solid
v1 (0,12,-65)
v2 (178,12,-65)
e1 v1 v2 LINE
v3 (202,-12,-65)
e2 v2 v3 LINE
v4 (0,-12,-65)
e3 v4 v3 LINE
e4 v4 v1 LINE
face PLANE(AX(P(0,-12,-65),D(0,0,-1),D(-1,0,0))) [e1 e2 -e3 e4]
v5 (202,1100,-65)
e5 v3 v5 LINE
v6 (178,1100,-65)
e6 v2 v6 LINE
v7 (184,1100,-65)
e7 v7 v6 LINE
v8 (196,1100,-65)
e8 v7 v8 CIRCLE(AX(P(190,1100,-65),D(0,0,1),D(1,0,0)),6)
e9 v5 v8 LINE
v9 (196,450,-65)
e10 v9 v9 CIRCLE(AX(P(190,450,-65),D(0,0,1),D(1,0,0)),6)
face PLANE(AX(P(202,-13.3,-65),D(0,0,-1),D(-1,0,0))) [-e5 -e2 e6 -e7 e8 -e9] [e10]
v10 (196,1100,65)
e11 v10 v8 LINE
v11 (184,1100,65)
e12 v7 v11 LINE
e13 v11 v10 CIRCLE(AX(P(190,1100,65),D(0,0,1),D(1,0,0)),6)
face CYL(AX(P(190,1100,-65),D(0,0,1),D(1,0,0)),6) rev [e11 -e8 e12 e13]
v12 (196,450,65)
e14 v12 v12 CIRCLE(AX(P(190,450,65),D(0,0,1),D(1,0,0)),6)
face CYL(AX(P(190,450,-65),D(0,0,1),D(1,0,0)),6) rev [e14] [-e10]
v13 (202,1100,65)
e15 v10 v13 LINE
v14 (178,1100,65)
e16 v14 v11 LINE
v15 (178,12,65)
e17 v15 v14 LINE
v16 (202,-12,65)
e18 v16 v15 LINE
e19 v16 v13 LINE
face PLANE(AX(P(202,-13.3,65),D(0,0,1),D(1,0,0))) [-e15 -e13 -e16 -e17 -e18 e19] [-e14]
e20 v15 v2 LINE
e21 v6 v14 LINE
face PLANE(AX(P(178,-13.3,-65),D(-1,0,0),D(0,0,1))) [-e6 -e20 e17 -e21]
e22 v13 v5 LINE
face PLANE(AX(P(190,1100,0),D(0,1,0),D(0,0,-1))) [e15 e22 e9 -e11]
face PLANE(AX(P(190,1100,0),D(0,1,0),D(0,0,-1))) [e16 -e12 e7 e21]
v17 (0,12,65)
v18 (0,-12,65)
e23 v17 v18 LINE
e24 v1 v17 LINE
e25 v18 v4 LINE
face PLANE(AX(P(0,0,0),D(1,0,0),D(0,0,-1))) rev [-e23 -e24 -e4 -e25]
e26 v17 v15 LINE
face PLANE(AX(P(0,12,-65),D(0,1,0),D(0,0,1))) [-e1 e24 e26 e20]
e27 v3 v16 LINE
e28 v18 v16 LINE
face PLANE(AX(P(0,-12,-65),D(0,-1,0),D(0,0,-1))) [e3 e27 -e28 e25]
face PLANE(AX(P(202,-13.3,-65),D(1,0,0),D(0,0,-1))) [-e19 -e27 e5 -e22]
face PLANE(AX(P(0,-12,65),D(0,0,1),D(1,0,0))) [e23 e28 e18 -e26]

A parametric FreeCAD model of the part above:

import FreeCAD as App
import Part
import Sketcher

V = App.Vector
Q = App.Units.Quantity

doc = App.newDocument("Part")
params = doc.addObject("Spreadsheet::Sheet", "Params")
for row, (alias, value) in enumerate([
    ("sketch1_width", "24 mm"),
    ("sketch1_height", "130 mm"),
    ("sketch2_width", "190 mm"),
    ("sketch2_height", "1100 mm"),
    ("sketch3_diameter", "12 mm"),
], start=1):
    params.set(f"A{row}", alias)
    params.set(f"B{row}", "=" + value)
    params.setAlias(f"B{row}", alias)

body = doc.addObject("PartDesign::Body", "Body")

sketch1 = body.newObject("Sketcher::SketchObject", "Sketch")
sketch1.AttachmentSupport = (doc.getObject("YZ_Plane"), [""])
sketch1.MapMode = "FlatFace"
sketch1.addGeometry(Part.LineSegment(V(12, 65, 0), V(-12, 65, 0)), False)
sketch1.addGeometry(Part.LineSegment(V(-12, 65, 0), V(-12, -65, 0)), False)
sketch1.addGeometry(Part.LineSegment(V(-12, -65, 0), V(12, -65, 0)), False)
sketch1.addGeometry(Part.LineSegment(V(12, -65, 0), V(12, 65, 0)), False)
sketch1.addConstraint(Sketcher.Constraint("Coincident", 0, 2, 1, 1))
sketch1.addConstraint(Sketcher.Constraint("Coincident", 1, 2, 2, 1))
sketch1.addConstraint(Sketcher.Constraint("Coincident", 2, 2, 3, 1))
sketch1.addConstraint(Sketcher.Constraint("Coincident", 3, 2, 0, 1))
sketch1.addConstraint(Sketcher.Constraint("Horizontal", 0))
sketch1.addConstraint(Sketcher.Constraint("Vertical", 1))
sketch1.addConstraint(Sketcher.Constraint("Horizontal", 2))
sketch1.addConstraint(Sketcher.Constraint("Vertical", 3))
sketch1.addConstraint(Sketcher.Constraint("Symmetric", 0, 2, 2, 2, -1, 1))
sketch1.addConstraint(Sketcher.Constraint("DistanceX", 0, 2, 0, 1, Q("24 mm")))
sketch1.addConstraint(Sketcher.Constraint("DistanceY", 1, 2, 1, 1, Q("130 mm")))
sketch1.setExpression("Constraints[9]", "Params.sketch1_width")
sketch1.setExpression("Constraints[10]", "Params.sketch1_height")

sketch2 = body.newObject("Sketcher::SketchObject", "Sketch001")
sketch2.AttachmentSupport = (doc.getObject("XY_Plane"), [""])
sketch2.MapMode = "FlatFace"
sketch2.addGeometry(Part.LineSegment(V(0, 0, 0), V(190, 0, 0)), False)
sketch2.addGeometry(Part.LineSegment(V(190, 0, 0), V(190, 1100, 0)), False)
sketch2.addConstraint(Sketcher.Constraint("Coincident", 0, 2, 1, 1))
sketch2.addConstraint(Sketcher.Constraint("Horizontal", 0))
sketch2.addConstraint(Sketcher.Constraint("Vertical", 1))
sketch2.addConstraint(Sketcher.Constraint("Coincident", 0, 1, -1, 1))
sketch2.addConstraint(Sketcher.Constraint("DistanceX", 0, 1, 0, 2, Q("190 mm")))
sketch2.addConstraint(Sketcher.Constraint("DistanceY", 1, 1, 1, 2, Q("1100 mm")))
sketch2.setExpression("Constraints[4]", "Params.sketch2_width")
sketch2.setExpression("Constraints[5]", "Params.sketch2_height")
doc.recompute()

additivepipe = body.newObject("PartDesign::AdditivePipe", "AdditivePipe")
additivepipe.Profile = sketch1
additivepipe.Spine = (sketch2, ["Edge1", "Edge2"])
additivepipe.Transition = "Right corner"

sketch3 = body.newObject("Sketcher::SketchObject", "Sketch002")
sketch3.AttachmentSupport = (doc.getObject("XY_Plane"), [""])
sketch3.MapMode = "FlatFace"
sketch3.AttachmentOffset = App.Placement(V(0, 0, 65), App.Rotation())
sketch3.addGeometry(Part.Circle(V(190, 1100, 0), V(0, 0, 1), 6), False)
sketch3.addGeometry(Part.Circle(V(190, 450, 0), V(0, 0, 1), 6), False)
sketch3.addConstraint(Sketcher.Constraint("Equal", 0, 1))
sketch3.addConstraint(Sketcher.Constraint("Vertical", 0, 3, 1, 3))
sketch3.addConstraint(Sketcher.Constraint("Diameter", 0, Q("12 mm")))
sketch3.addConstraint(Sketcher.Constraint("DistanceX", -1, 1, 0, 3, Q("190 mm")))
sketch3.addConstraint(Sketcher.Constraint("DistanceY", -1, 1, 0, 3, Q("1100 mm")))
sketch3.addConstraint(Sketcher.Constraint("DistanceY", -1, 1, 1, 3, Q("450 mm")))
sketch3.setExpression("Constraints[2]", "Params.sketch3_diameter")
pocket1 = body.newObject("PartDesign::Pocket", "Pocket")
pocket1.Profile = sketch3
pocket1.Type = "ThroughAll"

doc.recompute()
